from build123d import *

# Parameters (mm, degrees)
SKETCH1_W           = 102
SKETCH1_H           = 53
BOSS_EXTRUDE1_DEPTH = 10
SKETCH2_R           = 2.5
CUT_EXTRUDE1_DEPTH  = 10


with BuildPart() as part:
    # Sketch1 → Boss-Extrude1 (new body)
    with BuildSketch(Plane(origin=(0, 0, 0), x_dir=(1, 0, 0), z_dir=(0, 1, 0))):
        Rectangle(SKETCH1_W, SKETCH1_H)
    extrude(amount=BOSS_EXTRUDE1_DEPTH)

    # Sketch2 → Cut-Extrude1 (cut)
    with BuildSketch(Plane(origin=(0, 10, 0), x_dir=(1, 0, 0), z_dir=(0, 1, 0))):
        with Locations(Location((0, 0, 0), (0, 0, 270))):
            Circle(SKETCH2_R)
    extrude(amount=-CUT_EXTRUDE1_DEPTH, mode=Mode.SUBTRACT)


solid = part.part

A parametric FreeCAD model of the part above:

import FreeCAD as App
import Part
import Sketcher

doc = App.newDocument("Part")
body = doc.addObject("PartDesign::Body", "Body")

sketch1 = body.newObject("Sketcher::SketchObject", "Sketch")
sketch1.AttachmentSupport = (doc.getObject("XZ_Plane"), [""])
sketch1.MapMode = "FlatFace"
sketch1.addGeometry([
    Part.LineSegment(App.Vector(-51, -26.5, 0), App.Vector(-51, 26.5, 0)),
    Part.LineSegment(App.Vector(-51, 26.5, 0), App.Vector(51, 26.5, 0)),
    Part.LineSegment(App.Vector(51, 26.5, 0), App.Vector(51, -26.5, 0)),
    Part.LineSegment(App.Vector(51, -26.5, 0), App.Vector(-51, -26.5, 0)),
], False)
sketch1.addConstraint([
    Sketcher.Constraint("Coincident", 0, 2, 1, 1),
    Sketcher.Constraint("Coincident", 1, 2, 2, 1),
    Sketcher.Constraint("Coincident", 2, 2, 3, 1),
    Sketcher.Constraint("Coincident", 3, 2, 0, 1),
    Sketcher.Constraint("Vertical", 0),
    Sketcher.Constraint("Horizontal", 1),
    Sketcher.Constraint("Vertical", 2),
    Sketcher.Constraint("Horizontal", 3),
    Sketcher.Constraint("Symmetric", 0, 2, 2, 2, -1, 1),
    Sketcher.Constraint("DistanceX", 1, 1, 1, 2, 102.0),
    Sketcher.Constraint("DistanceY", 0, 1, 0, 2, 53.0),
])
pad1 = body.newObject("PartDesign::Pad", "Pad")
pad1.Profile = sketch1
pad1.Length = 10
pad1.Reversed = True

sketch2 = body.newObject("Sketcher::SketchObject", "Sketch001")
sketch2.AttachmentSupport = (doc.getObject("XZ_Plane"), [""])
sketch2.MapMode = "FlatFace"
sketch2.AttachmentOffset = App.Placement(App.Vector(0, 0, -10), App.Rotation())
sketch2.addGeometry(Part.Circle(App.Vector(0, 0, 0), App.Vector(0, 0, 1), 2.5), False)
sketch2.addConstraint([
    Sketcher.Constraint("Coincident", 0, 3, -1, 1),
    Sketcher.Constraint("Diameter", 0, 5.0),
])
pocket1 = body.newObject("PartDesign::Pocket", "Pocket")
pocket1.Profile = sketch2
pocket1.Length = 10
pocket1.Reversed = True

doc.recompute()
